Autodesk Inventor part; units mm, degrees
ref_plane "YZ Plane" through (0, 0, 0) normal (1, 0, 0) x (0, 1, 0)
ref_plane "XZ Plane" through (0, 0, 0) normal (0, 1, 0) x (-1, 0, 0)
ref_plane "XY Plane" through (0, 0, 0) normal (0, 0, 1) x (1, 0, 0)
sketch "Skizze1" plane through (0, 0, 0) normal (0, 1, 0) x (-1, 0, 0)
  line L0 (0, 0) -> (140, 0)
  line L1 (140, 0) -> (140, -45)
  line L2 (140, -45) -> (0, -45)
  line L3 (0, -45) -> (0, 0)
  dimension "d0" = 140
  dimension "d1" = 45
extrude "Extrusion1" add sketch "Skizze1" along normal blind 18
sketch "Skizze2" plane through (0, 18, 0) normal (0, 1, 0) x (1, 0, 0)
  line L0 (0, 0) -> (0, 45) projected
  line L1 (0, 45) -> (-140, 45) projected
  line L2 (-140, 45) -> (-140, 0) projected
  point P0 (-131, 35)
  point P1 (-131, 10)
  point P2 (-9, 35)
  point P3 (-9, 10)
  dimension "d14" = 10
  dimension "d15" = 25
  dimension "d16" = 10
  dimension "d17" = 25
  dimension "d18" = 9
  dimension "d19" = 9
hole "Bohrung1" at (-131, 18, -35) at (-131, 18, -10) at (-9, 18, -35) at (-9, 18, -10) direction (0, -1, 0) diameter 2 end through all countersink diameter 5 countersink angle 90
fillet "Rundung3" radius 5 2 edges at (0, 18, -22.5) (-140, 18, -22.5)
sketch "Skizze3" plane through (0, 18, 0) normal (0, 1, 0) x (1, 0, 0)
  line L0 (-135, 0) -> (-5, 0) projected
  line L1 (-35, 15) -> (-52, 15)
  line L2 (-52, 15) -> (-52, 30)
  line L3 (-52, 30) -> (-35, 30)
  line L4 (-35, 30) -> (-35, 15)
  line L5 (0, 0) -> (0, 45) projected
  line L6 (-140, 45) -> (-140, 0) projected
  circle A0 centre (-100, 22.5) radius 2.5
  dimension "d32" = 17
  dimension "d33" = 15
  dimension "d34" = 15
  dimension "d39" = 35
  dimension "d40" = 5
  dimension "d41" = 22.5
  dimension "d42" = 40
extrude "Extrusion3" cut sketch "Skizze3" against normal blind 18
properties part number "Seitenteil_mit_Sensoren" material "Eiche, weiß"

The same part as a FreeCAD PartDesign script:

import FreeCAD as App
import Part
import Sketcher
from FreeCAD import Vector


def edges_at(feature, points):
    """Names of the edges that pass closest to the given points."""
    edges = feature.Shape.Edges
    near = lambda p: min(range(len(edges)), key=lambda i: edges[i].distToShape(Part.Vertex(*p))[0])
    return sorted({f"Edge{near(p) + 1}" for p in points})


def add_polygon(sketch, points):
    """Adds a closed chain of lines whose ends are joined by coincident constraints."""
    first, n = sketch.GeometryCount, len(points)
    for a, b in zip(points, points[1:] + points[:1]):
        sketch.addGeometry(Part.LineSegment(App.Vector(*a, 0), App.Vector(*b, 0)), False)
    for i in range(n):
        sketch.addConstraint(Sketcher.Constraint("Coincident", first + i, 2, first + (i + 1) % n, 1))

doc = App.newDocument("Part")
params = doc.addObject("Spreadsheet::Sheet", "Params")
for row, (alias, value) in enumerate([
    ("sketch1_width", "140 mm"),
    ("sketch1_height", "45 mm"),
    ("pad1_length", "18 mm"),
    ("sketch2_diameter", "2 mm"),
    ("hole_diameter", "2 mm"),
    ("hole_csink_diameter", "5 mm"),
    ("fillet_radius", "5 mm"),
    ("sketch3_diameter", "5 mm"),
    ("sketch3_width", "17 mm"),
    ("sketch3_height", "15 mm"),
    ("pocket1_length", "18 mm"),
], start=1):
    params.set(f"A{row}", alias)
    params.set(f"B{row}", "=" + value)
    params.setAlias(f"B{row}", alias)

body = doc.addObject("PartDesign::Body", "Body")

# Sketch on XZ plane
sketch1 = body.newObject("Sketcher::SketchObject", "Sketch")
sketch1.AttachmentSupport = (doc.getObject("XZ_Plane"), [""])
sketch1.MapMode = "FlatFace"
add_polygon(sketch1, [(-140, 0), (0, 0), (0, -45), (-140, -45)])  # lines 0-3
sketch1.addConstraint([
    Sketcher.Constraint("Horizontal", 0),
    Sketcher.Constraint("Vertical", 1),
    Sketcher.Constraint("Horizontal", 2),
    Sketcher.Constraint("Vertical", 3),
    Sketcher.Constraint("Coincident", 0, 2, -1, 1),
    Sketcher.Constraint("DistanceX", 0, 1, 0, 2, 140.0),
    Sketcher.Constraint("DistanceY", 1, 2, 1, 1, 45.0),
])
sketch1.setExpression("Constraints[9]", "Params.sketch1_width")
sketch1.setExpression("Constraints[10]", "Params.sketch1_height")
pad1 = body.newObject("PartDesign::Pad", "Pad")
pad1.Profile = sketch1
pad1.setExpression("Length", "Params.pad1_length")
pad1.Reversed = True

# Sketch on XZ plane
sketch2 = body.newObject("Sketcher::SketchObject", "Sketch001")
sketch2.AttachmentSupport = (doc.getObject("XZ_Plane"), [""])
sketch2.MapMode = "FlatFace"
sketch2.AttachmentOffset = App.Placement(Vector(0, 0, -18), App.Rotation())
sketch2.addGeometry([
    Part.Circle(Vector(-131, -35, 0), Vector(0, 0, 1), 1),
    Part.Circle(Vector(-131, -10, 0), Vector(0, 0, 1), 1),
    Part.Circle(Vector(-9, -35, 0), Vector(0, 0, 1), 1),
    Part.Circle(Vector(-9, -10, 0), Vector(0, 0, 1), 1),
], False)
sketch2.addConstraint([
    Sketcher.Constraint("Equal", 0, 1),
    Sketcher.Constraint("Equal", 1, 2),
    Sketcher.Constraint("Equal", 2, 3),
    Sketcher.Constraint("Horizontal", 0, 3, 2, 3),
    Sketcher.Constraint("Horizontal", 1, 3, 3, 3),
    Sketcher.Constraint("Vertical", 0, 3, 1, 3),
    Sketcher.Constraint("Vertical", 2, 3, 3, 3),
    Sketcher.Constraint("Diameter", 0, 2.0),
    Sketcher.Constraint("DistanceX", 0, 3, -1, 1, 131.0),
    Sketcher.Constraint("DistanceY", 0, 3, -1, 1, 35.0),
    Sketcher.Constraint("DistanceY", 1, 3, -1, 1, 10.0),
    Sketcher.Constraint("DistanceX", 2, 3, -1, 1, 9.0),
])
sketch2.setExpression("Constraints[7]", "Params.sketch2_diameter")
doc.recompute()
hole = body.newObject("PartDesign::Hole", "Hole")
hole.Profile = sketch2
hole.ThreadType = "None"
hole.setExpression("Diameter", "Params.hole_diameter")
hole.DepthType = "ThroughAll"
hole.HoleCutType = "Countersink"
hole.setExpression("HoleCutDiameter", "Params.hole_csink_diameter")
hole.HoleCutCountersinkAngle = 90
hole.Reversed = True
doc.recompute()

fillet = body.newObject("PartDesign::Fillet", "Fillet")
fillet.Base = (hole, edges_at(hole, [(0, 18, -22.5), (-140, 18, -22.5)]))
fillet.setExpression("Radius", "Params.fillet_radius")

# Sketch on XZ plane
sketch3 = body.newObject("Sketcher::SketchObject", "Sketch002")
sketch3.AttachmentSupport = (doc.getObject("XZ_Plane"), [""])
sketch3.MapMode = "FlatFace"
sketch3.AttachmentOffset = App.Placement(Vector(0, 0, -18), App.Rotation())
add_polygon(sketch3, [(-52, -15), (-35, -15), (-35, -30), (-52, -30)])  # lines 0-3
sketch3.addGeometry(Part.Circle(Vector(-100, -22.5, 0), Vector(0, 0, 1), 2.5), False)  # 4
sketch3.addConstraint([
    Sketcher.Constraint("Horizontal", 0),
    Sketcher.Constraint("Vertical", 1),
    Sketcher.Constraint("Horizontal", 2),
    Sketcher.Constraint("Vertical", 3),
    Sketcher.Constraint("Diameter", 4, 5.0),
    Sketcher.Constraint("DistanceX", 0, 1, 0, 2, 17.0),
    Sketcher.Constraint("DistanceY", 1, 2, 1, 1, 15.0),
    Sketcher.Constraint("DistanceX", 0, 2, -1, 1, 35.0),
    Sketcher.Constraint("DistanceY", 0, 2, -1, 1, 15.0),
    Sketcher.Constraint("DistanceY", 4, 3, -1, 1, 22.5),
    Sketcher.Constraint("DistanceX", 4, 3, -1, 1, 100.0),
])
sketch3.setExpression("Constraints[8]", "Params.sketch3_diameter")
sketch3.setExpression("Constraints[9]", "Params.sketch3_width")
sketch3.setExpression("Constraints[10]", "Params.sketch3_height")
pocket1 = body.newObject("PartDesign::Pocket", "Pocket")
pocket1.Profile = sketch3
pocket1.setExpression("Length", "Params.pocket1_length")
pocket1.Reversed = True

doc.recompute()
